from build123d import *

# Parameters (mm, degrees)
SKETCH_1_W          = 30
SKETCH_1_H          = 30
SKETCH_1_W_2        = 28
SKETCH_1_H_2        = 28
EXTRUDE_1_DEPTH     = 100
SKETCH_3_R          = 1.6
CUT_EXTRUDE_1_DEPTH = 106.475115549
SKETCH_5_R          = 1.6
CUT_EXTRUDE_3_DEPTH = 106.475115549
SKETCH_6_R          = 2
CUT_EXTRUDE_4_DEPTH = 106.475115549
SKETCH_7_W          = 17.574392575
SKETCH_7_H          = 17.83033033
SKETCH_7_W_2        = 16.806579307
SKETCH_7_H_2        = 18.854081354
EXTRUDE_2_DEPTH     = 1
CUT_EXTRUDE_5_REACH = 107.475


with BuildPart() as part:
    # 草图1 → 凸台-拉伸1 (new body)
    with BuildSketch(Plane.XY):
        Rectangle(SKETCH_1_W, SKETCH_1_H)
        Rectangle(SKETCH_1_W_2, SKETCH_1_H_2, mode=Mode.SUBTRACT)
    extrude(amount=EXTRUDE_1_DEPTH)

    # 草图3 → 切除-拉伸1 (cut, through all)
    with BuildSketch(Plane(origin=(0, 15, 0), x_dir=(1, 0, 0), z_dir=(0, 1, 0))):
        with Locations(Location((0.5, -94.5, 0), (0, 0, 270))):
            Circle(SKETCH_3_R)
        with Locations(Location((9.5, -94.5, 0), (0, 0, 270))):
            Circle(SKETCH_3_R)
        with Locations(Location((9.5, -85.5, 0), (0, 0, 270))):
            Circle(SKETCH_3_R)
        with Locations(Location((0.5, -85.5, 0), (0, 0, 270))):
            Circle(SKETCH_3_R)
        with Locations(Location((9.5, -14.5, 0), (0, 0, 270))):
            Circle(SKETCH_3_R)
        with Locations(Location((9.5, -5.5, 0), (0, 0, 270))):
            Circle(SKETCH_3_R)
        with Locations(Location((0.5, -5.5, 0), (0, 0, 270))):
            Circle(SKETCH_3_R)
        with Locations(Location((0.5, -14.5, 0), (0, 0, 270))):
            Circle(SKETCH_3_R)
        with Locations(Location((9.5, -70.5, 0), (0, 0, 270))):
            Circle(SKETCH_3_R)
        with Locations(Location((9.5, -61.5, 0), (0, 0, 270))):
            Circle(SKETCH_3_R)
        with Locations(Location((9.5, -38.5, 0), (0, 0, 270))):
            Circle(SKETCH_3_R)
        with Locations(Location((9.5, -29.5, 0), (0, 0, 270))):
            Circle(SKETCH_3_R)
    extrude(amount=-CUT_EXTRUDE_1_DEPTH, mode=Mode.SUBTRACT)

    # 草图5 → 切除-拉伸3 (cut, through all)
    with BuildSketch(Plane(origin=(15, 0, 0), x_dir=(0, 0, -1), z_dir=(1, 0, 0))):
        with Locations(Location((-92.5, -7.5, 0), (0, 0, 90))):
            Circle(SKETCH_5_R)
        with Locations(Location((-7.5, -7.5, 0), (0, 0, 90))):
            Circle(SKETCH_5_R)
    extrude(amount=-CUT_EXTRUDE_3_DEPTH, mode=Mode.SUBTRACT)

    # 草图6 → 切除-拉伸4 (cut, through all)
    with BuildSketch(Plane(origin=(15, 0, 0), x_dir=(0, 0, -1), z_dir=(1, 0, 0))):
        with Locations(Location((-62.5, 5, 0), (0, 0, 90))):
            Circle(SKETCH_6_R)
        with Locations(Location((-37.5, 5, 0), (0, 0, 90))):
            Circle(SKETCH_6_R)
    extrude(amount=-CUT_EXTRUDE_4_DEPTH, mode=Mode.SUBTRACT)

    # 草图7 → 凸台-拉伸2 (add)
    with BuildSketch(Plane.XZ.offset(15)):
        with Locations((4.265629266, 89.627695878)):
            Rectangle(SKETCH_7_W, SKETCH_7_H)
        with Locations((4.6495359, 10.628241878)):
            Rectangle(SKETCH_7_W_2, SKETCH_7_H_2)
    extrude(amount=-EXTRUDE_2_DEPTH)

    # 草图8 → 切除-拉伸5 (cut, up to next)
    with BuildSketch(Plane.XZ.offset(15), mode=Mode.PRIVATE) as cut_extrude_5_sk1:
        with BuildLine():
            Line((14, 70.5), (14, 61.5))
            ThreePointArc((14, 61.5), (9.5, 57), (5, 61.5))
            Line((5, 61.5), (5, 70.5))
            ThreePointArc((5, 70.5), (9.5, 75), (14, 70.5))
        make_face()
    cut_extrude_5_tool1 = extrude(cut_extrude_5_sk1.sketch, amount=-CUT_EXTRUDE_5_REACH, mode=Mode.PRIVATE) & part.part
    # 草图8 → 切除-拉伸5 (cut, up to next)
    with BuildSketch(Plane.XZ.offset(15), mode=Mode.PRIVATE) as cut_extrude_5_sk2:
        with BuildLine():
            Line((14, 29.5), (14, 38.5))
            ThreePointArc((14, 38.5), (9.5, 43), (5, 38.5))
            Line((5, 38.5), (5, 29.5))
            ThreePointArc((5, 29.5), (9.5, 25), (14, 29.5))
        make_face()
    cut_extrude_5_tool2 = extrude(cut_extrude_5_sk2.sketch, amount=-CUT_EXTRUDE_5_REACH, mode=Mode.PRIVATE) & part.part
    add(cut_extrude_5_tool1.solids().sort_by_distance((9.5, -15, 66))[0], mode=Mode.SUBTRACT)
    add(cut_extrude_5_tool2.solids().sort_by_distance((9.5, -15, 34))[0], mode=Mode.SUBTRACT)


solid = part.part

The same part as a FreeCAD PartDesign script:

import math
import FreeCAD as App
import Part
import Sketcher
Q = App.Units.Quantity

doc = App.newDocument("Part")
body = doc.addObject("PartDesign::Body", "Body")

sketch1 = body.newObject("Sketcher::SketchObject", "Sketch")
sketch1.AttachmentSupport = (doc.getObject("XY_Plane"), [""])
sketch1.MapMode = "FlatFace"
sketch1.addGeometry(Part.LineSegment(App.Vector(-15, 15, 0), App.Vector(-15, -15, 0)), False)
sketch1.addGeometry(Part.LineSegment(App.Vector(-15, -15, 0), App.Vector(15, -15, 0)), False)
sketch1.addGeometry(Part.LineSegment(App.Vector(15, -15, 0), App.Vector(15, 15, 0)), False)
sketch1.addGeometry(Part.LineSegment(App.Vector(15, 15, 0), App.Vector(-15, 15, 0)), False)
sketch1.addGeometry(Part.LineSegment(App.Vector(14, -14, 0), App.Vector(-14, -14, 0)), False)
sketch1.addGeometry(Part.LineSegment(App.Vector(-14, -14, 0), App.Vector(-14, 14, 0)), False)
sketch1.addGeometry(Part.LineSegment(App.Vector(-14, 14, 0), App.Vector(14, 14, 0)), False)
sketch1.addGeometry(Part.LineSegment(App.Vector(14, 14, 0), App.Vector(14, -14, 0)), False)
sketch1.addConstraint(Sketcher.Constraint("Coincident", 0, 2, 1, 1))
sketch1.addConstraint(Sketcher.Constraint("Coincident", 1, 2, 2, 1))
sketch1.addConstraint(Sketcher.Constraint("Coincident", 2, 2, 3, 1))
sketch1.addConstraint(Sketcher.Constraint("Coincident", 3, 2, 0, 1))
sketch1.addConstraint(Sketcher.Constraint("Coincident", 4, 2, 5, 1))
sketch1.addConstraint(Sketcher.Constraint("Coincident", 5, 2, 6, 1))
sketch1.addConstraint(Sketcher.Constraint("Coincident", 6, 2, 7, 1))
sketch1.addConstraint(Sketcher.Constraint("Coincident", 7, 2, 4, 1))
sketch1.addConstraint(Sketcher.Constraint("Vertical", 0))
sketch1.addConstraint(Sketcher.Constraint("Horizontal", 1))
sketch1.addConstraint(Sketcher.Constraint("Vertical", 2))
sketch1.addConstraint(Sketcher.Constraint("Horizontal", 3))
sketch1.addConstraint(Sketcher.Constraint("Horizontal", 4))
sketch1.addConstraint(Sketcher.Constraint("Vertical", 5))
sketch1.addConstraint(Sketcher.Constraint("Horizontal", 6))
sketch1.addConstraint(Sketcher.Constraint("Vertical", 7))
sketch1.addConstraint(Sketcher.Constraint("Symmetric", 0, 2, 2, 2, -1, 1))
sketch1.addConstraint(Sketcher.Constraint("Symmetric", 4, 2, 6, 2, -1, 1))
sketch1.addConstraint(Sketcher.Constraint("Equal", 3, 0))
sketch1.addConstraint(Sketcher.Constraint("Equal", 6, 5))
sketch1.addConstraint(Sketcher.Constraint("DistanceX", 1, 1, 1, 2, Q("30 mm")))
sketch1.addConstraint(Sketcher.Constraint("DistanceX", 4, 2, 4, 1, Q("28 mm")))
pad1 = body.newObject("PartDesign::Pad", "Pad")
pad1.Profile = sketch1
pad1.Length = 100

sketch2 = body.newObject("Sketcher::SketchObject", "Sketch001")
sketch2.AttachmentSupport = (doc.getObject("XZ_Plane"), [""])
sketch2.MapMode = "FlatFace"
sketch2.AttachmentOffset = App.Placement(App.Vector(0, 0, -15), App.Rotation())
sketch2.addGeometry(Part.Circle(App.Vector(0.5, 94.5, 0), App.Vector(0, 0, 1), 1.6), False)
sketch2.addGeometry(Part.Circle(App.Vector(9.5, 94.5, 0), App.Vector(0, 0, 1), 1.6), False)
sketch2.addGeometry(Part.Circle(App.Vector(9.5, 85.5, 0), App.Vector(0, 0, 1), 1.6), False)
sketch2.addGeometry(Part.Circle(App.Vector(0.5, 85.5, 0), App.Vector(0, 0, 1), 1.6), False)
sketch2.addGeometry(Part.Circle(App.Vector(9.5, 14.5, 0), App.Vector(0, 0, 1), 1.6), False)
sketch2.addGeometry(Part.Circle(App.Vector(9.5, 5.5, 0), App.Vector(0, 0, 1), 1.6), False)
sketch2.addGeometry(Part.Circle(App.Vector(0.5, 5.5, 0), App.Vector(0, 0, 1), 1.6), False)
sketch2.addGeometry(Part.Circle(App.Vector(0.5, 14.5, 0), App.Vector(0, 0, 1), 1.6), False)
sketch2.addGeometry(Part.Circle(App.Vector(9.5, 70.5, 0), App.Vector(0, 0, 1), 1.6), False)
sketch2.addGeometry(Part.Circle(App.Vector(9.5, 61.5, 0), App.Vector(0, 0, 1), 1.6), False)
sketch2.addGeometry(Part.Circle(App.Vector(9.5, 38.5, 0), App.Vector(0, 0, 1), 1.6), False)
sketch2.addGeometry(Part.Circle(App.Vector(9.5, 29.5, 0), App.Vector(0, 0, 1), 1.6), False)
sketch2.addConstraint(Sketcher.Constraint("Equal", 0, 1))
sketch2.addConstraint(Sketcher.Constraint("Equal", 1, 2))
sketch2.addConstraint(Sketcher.Constraint("Equal", 2, 3))
sketch2.addConstraint(Sketcher.Constraint("Equal", 3, 4))
sketch2.addConstraint(Sketcher.Constraint("Equal", 4, 5))
sketch2.addConstraint(Sketcher.Constraint("Equal", 5, 6))
sketch2.addConstraint(Sketcher.Constraint("Equal", 6, 7))
sketch2.addConstraint(Sketcher.Constraint("Equal", 7, 8))
sketch2.addConstraint(Sketcher.Constraint("Equal", 8, 9))
sketch2.addConstraint(Sketcher.Constraint("Equal", 9, 10))
sketch2.addConstraint(Sketcher.Constraint("Equal", 10, 11))
sketch2.addConstraint(Sketcher.Constraint("Horizontal", 0, 3, 1, 3))
sketch2.addConstraint(Sketcher.Constraint("Horizontal", 2, 3, 3, 3))
sketch2.addConstraint(Sketcher.Constraint("Horizontal", 5, 3, 6, 3))
sketch2.addConstraint(Sketcher.Constraint("Horizontal", 4, 3, 7, 3))
sketch2.addConstraint(Sketcher.Constraint("Vertical", 1, 3, 2, 3))
sketch2.addConstraint(Sketcher.Constraint("Vertical", 0, 3, 3, 3))
sketch2.addConstraint(Sketcher.Constraint("Vertical", 2, 3, 4, 3))
sketch2.addConstraint(Sketcher.Constraint("Vertical", 4, 3, 5, 3))
sketch2.addConstraint(Sketcher.Constraint("Vertical", 3, 3, 6, 3))
sketch2.addConstraint(Sketcher.Constraint("Vertical", 6, 3, 7, 3))
sketch2.addConstraint(Sketcher.Constraint("Vertical", 5, 3, 8, 3))
sketch2.addConstraint(Sketcher.Constraint("Vertical", 8, 3, 9, 3))
sketch2.addConstraint(Sketcher.Constraint("Vertical", 9, 3, 10, 3))
sketch2.addConstraint(Sketcher.Constraint("Vertical", 10, 3, 11, 3))
sketch2.addConstraint(Sketcher.Constraint("Diameter", 0, Q("3.2 mm")))
sketch2.addConstraint(Sketcher.Constraint("DistanceX", 0, 3, 1, 3, Q("9 mm")))
sketch2.addConstraint(Sketcher.Constraint("DistanceY", 2, 3, 1, 3, Q("9 mm")))
sketch2.addConstraint(Sketcher.Constraint("DistanceY", 4, 3, 2, 3, Q("71 mm")))
sketch2.addConstraint(Sketcher.Constraint("DistanceY", 5, 3, 4, 3, Q("9 mm")))
sketch2.addConstraint(Sketcher.Constraint("DistanceY", 8, 3, 2, 3, Q("15 mm")))
sketch2.addConstraint(Sketcher.Constraint("DistanceY", 9, 3, 8, 3, Q("9 mm")))
sketch2.addConstraint(Sketcher.Constraint("DistanceY", 10, 3, 9, 3, Q("23 mm")))
sketch2.addConstraint(Sketcher.Constraint("DistanceY", 11, 3, 10, 3, Q("9 mm")))
sketch2.addConstraint(Sketcher.Constraint("DistanceX", -1, 1, 0, 3, Q("0.5 mm")))
sketch2.addConstraint(Sketcher.Constraint("DistanceY", -1, 1, 0, 3, Q("94.5 mm")))
pocket1 = body.newObject("PartDesign::Pocket", "Pocket")
pocket1.Profile = sketch2
pocket1.Type = "ThroughAll"
pocket1.Reversed = True

sketch3 = body.newObject("Sketcher::SketchObject", "Sketch002")
sketch3.AttachmentSupport = (doc.getObject("YZ_Plane"), [""])
sketch3.MapMode = "FlatFace"
sketch3.AttachmentOffset = App.Placement(App.Vector(0, 0, 15), App.Rotation())
sketch3.addGeometry(Part.Circle(App.Vector(-7.5, 92.5, 0), App.Vector(0, 0, 1), 1.6), False)
sketch3.addGeometry(Part.Circle(App.Vector(-7.5, 7.5, 0), App.Vector(0, 0, 1), 1.6), False)
sketch3.addConstraint(Sketcher.Constraint("Equal", 0, 1))
sketch3.addConstraint(Sketcher.Constraint("Vertical", 0, 3, 1, 3))
sketch3.addConstraint(Sketcher.Constraint("Diameter", 0, Q("3.2 mm")))
sketch3.addConstraint(Sketcher.Constraint("DistanceY", 1, 3, 0, 3, Q("85 mm")))
sketch3.addConstraint(Sketcher.Constraint("DistanceX", 0, 3, -1, 1, Q("7.5 mm")))
sketch3.addConstraint(Sketcher.Constraint("DistanceY", -1, 1, 0, 3, Q("92.5 mm")))
pocket2 = body.newObject("PartDesign::Pocket", "Pocket001")
pocket2.Profile = sketch3
pocket2.Type = "ThroughAll"

sketch4 = body.newObject("Sketcher::SketchObject", "Sketch003")
sketch4.AttachmentSupport = (doc.getObject("YZ_Plane"), [""])
sketch4.MapMode = "FlatFace"
sketch4.AttachmentOffset = App.Placement(App.Vector(0, 0, 15), App.Rotation())
sketch4.addGeometry(Part.Circle(App.Vector(5, 62.5, 0), App.Vector(0, 0, 1), 2), False)
sketch4.addGeometry(Part.Circle(App.Vector(5, 37.5, 0), App.Vector(0, 0, 1), 2), False)
sketch4.addConstraint(Sketcher.Constraint("Equal", 0, 1))
sketch4.addConstraint(Sketcher.Constraint("Vertical", 0, 3, 1, 3))
sketch4.addConstraint(Sketcher.Constraint("Diameter", 0, Q("4 mm")))
sketch4.addConstraint(Sketcher.Constraint("DistanceX", -1, 1, 0, 3, Q("5 mm")))
sketch4.addConstraint(Sketcher.Constraint("DistanceY", 1, 3, 0, 3, Q("25 mm")))
sketch4.addConstraint(Sketcher.Constraint("DistanceY", -1, 1, 0, 3, Q("62.5 mm")))
pocket3 = body.newObject("PartDesign::Pocket", "Pocket002")
pocket3.Profile = sketch4
pocket3.Type = "ThroughAll"

sketch5 = body.newObject("Sketcher::SketchObject", "Sketch004")
sketch5.AttachmentSupport = (doc.getObject("XZ_Plane"), [""])
sketch5.MapMode = "FlatFace"
sketch5.AttachmentOffset = App.Placement(App.Vector(0, 0, 15), App.Rotation())
sketch5.addGeometry(Part.LineSegment(App.Vector(-4.521567, 98.542861, 0), App.Vector(-4.521567, 80.712531, 0)), False)
sketch5.addGeometry(Part.LineSegment(App.Vector(-4.521567, 80.712531, 0), App.Vector(13.052826, 80.712531, 0)), False)
sketch5.addGeometry(Part.LineSegment(App.Vector(13.052826, 80.712531, 0), App.Vector(13.052826, 98.542861, 0)), False)
sketch5.addGeometry(Part.LineSegment(App.Vector(13.052826, 98.542861, 0), App.Vector(-4.521567, 98.542861, 0)), False)
sketch5.addGeometry(Part.LineSegment(App.Vector(-3.753754, 20.055283, 0), App.Vector(-3.753754, 1.201201, 0)), False)
sketch5.addGeometry(Part.LineSegment(App.Vector(-3.753754, 1.201201, 0), App.Vector(13.052826, 1.201201, 0)), False)
sketch5.addGeometry(Part.LineSegment(App.Vector(13.052826, 1.201201, 0), App.Vector(13.052826, 20.055283, 0)), False)
sketch5.addGeometry(Part.LineSegment(App.Vector(13.052826, 20.055283, 0), App.Vector(-3.753754, 20.055283, 0)), False)
sketch5.addConstraint(Sketcher.Constraint("Coincident", 0, 2, 1, 1))
sketch5.addConstraint(Sketcher.Constraint("Coincident", 1, 2, 2, 1))
sketch5.addConstraint(Sketcher.Constraint("Coincident", 2, 2, 3, 1))
sketch5.addConstraint(Sketcher.Constraint("Coincident", 3, 2, 0, 1))
sketch5.addConstraint(Sketcher.Constraint("Coincident", 4, 2, 5, 1))
sketch5.addConstraint(Sketcher.Constraint("Coincident", 5, 2, 6, 1))
sketch5.addConstraint(Sketcher.Constraint("Coincident", 6, 2, 7, 1))
sketch5.addConstraint(Sketcher.Constraint("Coincident", 7, 2, 4, 1))
sketch5.addConstraint(Sketcher.Constraint("Vertical", 0))
sketch5.addConstraint(Sketcher.Constraint("Horizontal", 1))
sketch5.addConstraint(Sketcher.Constraint("Vertical", 2))
sketch5.addConstraint(Sketcher.Constraint("Horizontal", 3))
sketch5.addConstraint(Sketcher.Constraint("Vertical", 4))
sketch5.addConstraint(Sketcher.Constraint("Horizontal", 5))
sketch5.addConstraint(Sketcher.Constraint("Vertical", 6))
sketch5.addConstraint(Sketcher.Constraint("Horizontal", 7))
sketch5.addConstraint(Sketcher.Constraint("Vertical", 2, 2, 5, 2))
sketch5.addConstraint(Sketcher.Constraint("DistanceX", 5, 1, 5, 2, Q("16.806579 mm")))
sketch5.addConstraint(Sketcher.Constraint("DistanceY", 0, 2, 0, 1, Q("17.83033 mm")))
sketch5.addConstraint(Sketcher.Constraint("DistanceY", 4, 2, 4, 1, Q("18.854081 mm")))
sketch5.addConstraint(Sketcher.Constraint("DistanceY", -1, 1, 4, 2, Q("1.201201 mm")))
sketch5.addConstraint(Sketcher.Constraint("DistanceX", 1, 1, 1, 2, Q("17.574393 mm")))
sketch5.addConstraint(Sketcher.Constraint("DistanceY", -1, 1, 0, 2, Q("80.712531 mm")))
sketch5.addConstraint(Sketcher.Constraint("DistanceX", 0, 2, -1, 1, Q("4.521567 mm")))
pad2 = body.newObject("PartDesign::Pad", "Pad001")
pad2.Profile = sketch5
pad2.Length = 1
pad2.Reversed = True

sketch6 = body.newObject("Sketcher::SketchObject", "Sketch005")
sketch6.AttachmentSupport = (doc.getObject("XZ_Plane"), [""])
sketch6.MapMode = "FlatFace"
sketch6.AttachmentOffset = App.Placement(App.Vector(0, 0, 15), App.Rotation())
sketch6.addGeometry(Part.LineSegment(App.Vector(14, 61.5, 0), App.Vector(14, 70.5, 0)), False)
sketch6.addGeometry(Part.ArcOfCircle(Part.Circle(App.Vector(9.5, 70.5, 0), App.Vector(0, 0, 1), 4.5), math.radians(0), math.radians(180)), False)
sketch6.addGeometry(Part.LineSegment(App.Vector(5, 70.5, 0), App.Vector(5, 61.5, 0)), False)
sketch6.addGeometry(Part.ArcOfCircle(Part.Circle(App.Vector(9.5, 61.5, 0), App.Vector(0, 0, 1), 4.5), math.radians(180), math.radians(360)), False)
sketch6.addConstraint(Sketcher.Constraint("Tangent", 0, 2, 1, 1))
sketch6.addConstraint(Sketcher.Constraint("Tangent", 1, 2, 2, 1))
sketch6.addConstraint(Sketcher.Constraint("Tangent", 2, 2, 3, 1))
sketch6.addConstraint(Sketcher.Constraint("Tangent", 3, 2, 0, 1))
sketch6.addConstraint(Sketcher.Constraint("Vertical", 0))
sketch6.addConstraint(Sketcher.Constraint("Vertical", 2))
sketch6.addConstraint(Sketcher.Constraint("Radius", 1, Q("4.5 mm")))
sketch6.addConstraint(Sketcher.Constraint("DistanceY", 0, 1, 0, 2, Q("9 mm")))
sketch6.addConstraint(Sketcher.Constraint("DistanceX", -1, 1, 0, 2, Q("14 mm")))
sketch6.addConstraint(Sketcher.Constraint("DistanceY", -1, 1, 1, 3, Q("70.5 mm")))
pocket4 = body.newObject("PartDesign::Pocket", "Pocket003")
pocket4.Profile = sketch6
pocket4.Type = "UpToFirst"

sketch7 = body.newObject("Sketcher::SketchObject", "Sketch006")
sketch7.AttachmentSupport = (doc.getObject("XZ_Plane"), [""])
sketch7.MapMode = "FlatFace"
sketch7.AttachmentOffset = App.Placement(App.Vector(0, 0, 15), App.Rotation())
sketch7.addGeometry(Part.LineSegment(App.Vector(14, 29.5, 0), App.Vector(14, 38.5, 0)), False)
sketch7.addGeometry(Part.ArcOfCircle(Part.Circle(App.Vector(9.5, 38.5, 0), App.Vector(0, 0, 1), 4.5), math.radians(0), math.radians(180)), False)
sketch7.addGeometry(Part.LineSegment(App.Vector(5, 38.5, 0), App.Vector(5, 29.5, 0)), False)
sketch7.addGeometry(Part.ArcOfCircle(Part.Circle(App.Vector(9.5, 29.5, 0), App.Vector(0, 0, 1), 4.5), math.radians(180), math.radians(360)), False)
sketch7.addConstraint(Sketcher.Constraint("Tangent", 0, 2, 1, 1))
sketch7.addConstraint(Sketcher.Constraint("Tangent", 1, 2, 2, 1))
sketch7.addConstraint(Sketcher.Constraint("Tangent", 2, 2, 3, 1))
sketch7.addConstraint(Sketcher.Constraint("Tangent", 3, 2, 0, 1))
sketch7.addConstraint(Sketcher.Constraint("Vertical", 0))
sketch7.addConstraint(Sketcher.Constraint("Vertical", 2))
sketch7.addConstraint(Sketcher.Constraint("Radius", 1, Q("4.5 mm")))
sketch7.addConstraint(Sketcher.Constraint("DistanceY", 0, 1, 0, 2, Q("9 mm")))
sketch7.addConstraint(Sketcher.Constraint("DistanceX", -1, 1, 0, 2, Q("14 mm")))
sketch7.addConstraint(Sketcher.Constraint("DistanceY", -1, 1, 1, 3, Q("38.5 mm")))
pocket5 = body.newObject("PartDesign::Pocket", "Pocket004")
pocket5.Profile = sketch7
pocket5.Type = "UpToFirst"

doc.recompute()
